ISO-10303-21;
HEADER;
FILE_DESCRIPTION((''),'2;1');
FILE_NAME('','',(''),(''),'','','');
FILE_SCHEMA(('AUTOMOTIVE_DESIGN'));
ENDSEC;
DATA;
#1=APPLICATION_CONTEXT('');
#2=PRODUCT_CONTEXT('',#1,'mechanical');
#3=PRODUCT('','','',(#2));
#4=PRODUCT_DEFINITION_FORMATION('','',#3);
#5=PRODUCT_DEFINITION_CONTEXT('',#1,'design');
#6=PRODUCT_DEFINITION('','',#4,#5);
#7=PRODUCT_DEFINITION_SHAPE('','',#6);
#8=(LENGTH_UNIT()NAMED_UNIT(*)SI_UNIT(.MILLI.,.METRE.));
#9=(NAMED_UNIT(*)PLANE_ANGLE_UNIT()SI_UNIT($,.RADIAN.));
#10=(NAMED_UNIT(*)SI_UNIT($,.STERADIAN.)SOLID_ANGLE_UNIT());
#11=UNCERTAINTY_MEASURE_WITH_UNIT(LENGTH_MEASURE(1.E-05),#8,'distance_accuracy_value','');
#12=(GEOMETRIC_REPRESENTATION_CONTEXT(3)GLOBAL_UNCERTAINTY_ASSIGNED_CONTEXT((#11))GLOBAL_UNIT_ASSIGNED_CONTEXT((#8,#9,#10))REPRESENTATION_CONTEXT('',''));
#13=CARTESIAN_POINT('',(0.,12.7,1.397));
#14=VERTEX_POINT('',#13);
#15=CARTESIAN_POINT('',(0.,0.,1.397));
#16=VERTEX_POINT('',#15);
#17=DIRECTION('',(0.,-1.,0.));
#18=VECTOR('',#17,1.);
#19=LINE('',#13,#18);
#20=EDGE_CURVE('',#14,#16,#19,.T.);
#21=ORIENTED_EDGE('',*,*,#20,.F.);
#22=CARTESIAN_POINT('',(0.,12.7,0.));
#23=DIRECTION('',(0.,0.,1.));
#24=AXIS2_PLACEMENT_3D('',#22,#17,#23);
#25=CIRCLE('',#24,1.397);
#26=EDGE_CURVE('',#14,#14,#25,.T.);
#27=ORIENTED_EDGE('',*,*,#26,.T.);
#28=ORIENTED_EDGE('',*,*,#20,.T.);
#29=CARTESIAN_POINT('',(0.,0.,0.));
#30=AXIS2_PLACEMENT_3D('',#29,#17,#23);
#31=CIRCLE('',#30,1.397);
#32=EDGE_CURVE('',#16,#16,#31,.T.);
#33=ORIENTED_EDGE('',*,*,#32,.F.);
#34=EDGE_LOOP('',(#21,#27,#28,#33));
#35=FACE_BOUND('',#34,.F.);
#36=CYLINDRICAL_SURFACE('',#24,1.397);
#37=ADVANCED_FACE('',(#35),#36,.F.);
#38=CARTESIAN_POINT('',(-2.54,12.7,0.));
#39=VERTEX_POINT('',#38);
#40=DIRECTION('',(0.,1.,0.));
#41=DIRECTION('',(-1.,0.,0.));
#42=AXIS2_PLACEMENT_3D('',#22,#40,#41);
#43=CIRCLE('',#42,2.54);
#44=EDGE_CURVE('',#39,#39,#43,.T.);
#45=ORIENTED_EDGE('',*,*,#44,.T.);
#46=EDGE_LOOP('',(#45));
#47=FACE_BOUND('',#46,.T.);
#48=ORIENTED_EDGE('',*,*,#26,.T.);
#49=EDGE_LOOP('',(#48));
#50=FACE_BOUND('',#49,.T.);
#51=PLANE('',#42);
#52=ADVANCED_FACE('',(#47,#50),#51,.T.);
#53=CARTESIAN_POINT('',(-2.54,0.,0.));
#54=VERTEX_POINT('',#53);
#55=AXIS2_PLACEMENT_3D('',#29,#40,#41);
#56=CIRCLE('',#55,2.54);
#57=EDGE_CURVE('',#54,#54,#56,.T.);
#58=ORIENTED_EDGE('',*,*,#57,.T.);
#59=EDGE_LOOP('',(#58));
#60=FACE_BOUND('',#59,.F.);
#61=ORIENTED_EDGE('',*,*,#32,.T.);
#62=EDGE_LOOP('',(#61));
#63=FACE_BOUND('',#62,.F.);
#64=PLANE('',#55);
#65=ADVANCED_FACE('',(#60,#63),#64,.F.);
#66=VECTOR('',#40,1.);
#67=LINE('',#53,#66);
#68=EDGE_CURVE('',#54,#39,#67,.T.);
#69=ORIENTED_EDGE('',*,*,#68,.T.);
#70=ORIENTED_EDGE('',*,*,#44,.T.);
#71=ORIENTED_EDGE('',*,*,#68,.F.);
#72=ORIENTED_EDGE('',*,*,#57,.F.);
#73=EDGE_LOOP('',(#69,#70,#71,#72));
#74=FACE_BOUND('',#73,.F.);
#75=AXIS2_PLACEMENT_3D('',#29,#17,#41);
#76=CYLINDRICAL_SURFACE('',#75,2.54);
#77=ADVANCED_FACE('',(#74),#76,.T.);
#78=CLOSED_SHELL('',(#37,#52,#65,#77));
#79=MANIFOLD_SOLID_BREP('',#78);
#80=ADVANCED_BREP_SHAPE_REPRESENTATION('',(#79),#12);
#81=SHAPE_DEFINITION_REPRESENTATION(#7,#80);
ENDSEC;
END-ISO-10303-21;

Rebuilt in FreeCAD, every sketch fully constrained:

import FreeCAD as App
import Part
import Sketcher
Q = App.Units.Quantity

doc = App.newDocument("Part")
body = doc.addObject("PartDesign::Body", "Body")

# Sketch on XZ plane
sketch1 = body.newObject("Sketcher::SketchObject", "Sketch")
sketch1.AttachmentSupport = (doc.getObject("XZ_Plane"), [""])
sketch1.MapMode = "FlatFace"
sketch1.addGeometry(Part.Circle(App.Vector(0, 0, 0), App.Vector(0, 0, 1), 2.5), False)
sketch1.addConstraint(Sketcher.Constraint("Coincident", 0, 3, -1, 1))
sketch1.addConstraint(Sketcher.Constraint("Diameter", 0, Q("0.2 in")))
pad1 = body.newObject("PartDesign::Pad", "Pad")
pad1.Profile = sketch1
pad1.Length = Q("0.5 in")
pad1.Reversed = True

# Sketch on XZ plane
sketch2 = body.newObject("Sketcher::SketchObject", "Sketch001")
sketch2.AttachmentSupport = (doc.getObject("XZ_Plane"), [""])
sketch2.MapMode = "FlatFace"
sketch2.AttachmentOffset = App.Placement(App.Vector(0, 0, -0.5 * 25.4), App.Rotation())
sketch2.addGeometry(Part.Circle(App.Vector(0, 0, 0), App.Vector(0, 0, 1), 1.4), False)
sketch2.addConstraint(Sketcher.Constraint("Coincident", 0, 3, -1, 1))
sketch2.addConstraint(Sketcher.Constraint("Diameter", 0, Q("0.11 in")))
doc.recompute()
hole = body.newObject("PartDesign::Hole", "Hole")
hole.Profile = sketch2
hole.ThreadType = "None"
hole.Diameter = Q("0.11 in")
hole.DepthType = "ThroughAll"
hole.Reversed = True

doc.recompute()
